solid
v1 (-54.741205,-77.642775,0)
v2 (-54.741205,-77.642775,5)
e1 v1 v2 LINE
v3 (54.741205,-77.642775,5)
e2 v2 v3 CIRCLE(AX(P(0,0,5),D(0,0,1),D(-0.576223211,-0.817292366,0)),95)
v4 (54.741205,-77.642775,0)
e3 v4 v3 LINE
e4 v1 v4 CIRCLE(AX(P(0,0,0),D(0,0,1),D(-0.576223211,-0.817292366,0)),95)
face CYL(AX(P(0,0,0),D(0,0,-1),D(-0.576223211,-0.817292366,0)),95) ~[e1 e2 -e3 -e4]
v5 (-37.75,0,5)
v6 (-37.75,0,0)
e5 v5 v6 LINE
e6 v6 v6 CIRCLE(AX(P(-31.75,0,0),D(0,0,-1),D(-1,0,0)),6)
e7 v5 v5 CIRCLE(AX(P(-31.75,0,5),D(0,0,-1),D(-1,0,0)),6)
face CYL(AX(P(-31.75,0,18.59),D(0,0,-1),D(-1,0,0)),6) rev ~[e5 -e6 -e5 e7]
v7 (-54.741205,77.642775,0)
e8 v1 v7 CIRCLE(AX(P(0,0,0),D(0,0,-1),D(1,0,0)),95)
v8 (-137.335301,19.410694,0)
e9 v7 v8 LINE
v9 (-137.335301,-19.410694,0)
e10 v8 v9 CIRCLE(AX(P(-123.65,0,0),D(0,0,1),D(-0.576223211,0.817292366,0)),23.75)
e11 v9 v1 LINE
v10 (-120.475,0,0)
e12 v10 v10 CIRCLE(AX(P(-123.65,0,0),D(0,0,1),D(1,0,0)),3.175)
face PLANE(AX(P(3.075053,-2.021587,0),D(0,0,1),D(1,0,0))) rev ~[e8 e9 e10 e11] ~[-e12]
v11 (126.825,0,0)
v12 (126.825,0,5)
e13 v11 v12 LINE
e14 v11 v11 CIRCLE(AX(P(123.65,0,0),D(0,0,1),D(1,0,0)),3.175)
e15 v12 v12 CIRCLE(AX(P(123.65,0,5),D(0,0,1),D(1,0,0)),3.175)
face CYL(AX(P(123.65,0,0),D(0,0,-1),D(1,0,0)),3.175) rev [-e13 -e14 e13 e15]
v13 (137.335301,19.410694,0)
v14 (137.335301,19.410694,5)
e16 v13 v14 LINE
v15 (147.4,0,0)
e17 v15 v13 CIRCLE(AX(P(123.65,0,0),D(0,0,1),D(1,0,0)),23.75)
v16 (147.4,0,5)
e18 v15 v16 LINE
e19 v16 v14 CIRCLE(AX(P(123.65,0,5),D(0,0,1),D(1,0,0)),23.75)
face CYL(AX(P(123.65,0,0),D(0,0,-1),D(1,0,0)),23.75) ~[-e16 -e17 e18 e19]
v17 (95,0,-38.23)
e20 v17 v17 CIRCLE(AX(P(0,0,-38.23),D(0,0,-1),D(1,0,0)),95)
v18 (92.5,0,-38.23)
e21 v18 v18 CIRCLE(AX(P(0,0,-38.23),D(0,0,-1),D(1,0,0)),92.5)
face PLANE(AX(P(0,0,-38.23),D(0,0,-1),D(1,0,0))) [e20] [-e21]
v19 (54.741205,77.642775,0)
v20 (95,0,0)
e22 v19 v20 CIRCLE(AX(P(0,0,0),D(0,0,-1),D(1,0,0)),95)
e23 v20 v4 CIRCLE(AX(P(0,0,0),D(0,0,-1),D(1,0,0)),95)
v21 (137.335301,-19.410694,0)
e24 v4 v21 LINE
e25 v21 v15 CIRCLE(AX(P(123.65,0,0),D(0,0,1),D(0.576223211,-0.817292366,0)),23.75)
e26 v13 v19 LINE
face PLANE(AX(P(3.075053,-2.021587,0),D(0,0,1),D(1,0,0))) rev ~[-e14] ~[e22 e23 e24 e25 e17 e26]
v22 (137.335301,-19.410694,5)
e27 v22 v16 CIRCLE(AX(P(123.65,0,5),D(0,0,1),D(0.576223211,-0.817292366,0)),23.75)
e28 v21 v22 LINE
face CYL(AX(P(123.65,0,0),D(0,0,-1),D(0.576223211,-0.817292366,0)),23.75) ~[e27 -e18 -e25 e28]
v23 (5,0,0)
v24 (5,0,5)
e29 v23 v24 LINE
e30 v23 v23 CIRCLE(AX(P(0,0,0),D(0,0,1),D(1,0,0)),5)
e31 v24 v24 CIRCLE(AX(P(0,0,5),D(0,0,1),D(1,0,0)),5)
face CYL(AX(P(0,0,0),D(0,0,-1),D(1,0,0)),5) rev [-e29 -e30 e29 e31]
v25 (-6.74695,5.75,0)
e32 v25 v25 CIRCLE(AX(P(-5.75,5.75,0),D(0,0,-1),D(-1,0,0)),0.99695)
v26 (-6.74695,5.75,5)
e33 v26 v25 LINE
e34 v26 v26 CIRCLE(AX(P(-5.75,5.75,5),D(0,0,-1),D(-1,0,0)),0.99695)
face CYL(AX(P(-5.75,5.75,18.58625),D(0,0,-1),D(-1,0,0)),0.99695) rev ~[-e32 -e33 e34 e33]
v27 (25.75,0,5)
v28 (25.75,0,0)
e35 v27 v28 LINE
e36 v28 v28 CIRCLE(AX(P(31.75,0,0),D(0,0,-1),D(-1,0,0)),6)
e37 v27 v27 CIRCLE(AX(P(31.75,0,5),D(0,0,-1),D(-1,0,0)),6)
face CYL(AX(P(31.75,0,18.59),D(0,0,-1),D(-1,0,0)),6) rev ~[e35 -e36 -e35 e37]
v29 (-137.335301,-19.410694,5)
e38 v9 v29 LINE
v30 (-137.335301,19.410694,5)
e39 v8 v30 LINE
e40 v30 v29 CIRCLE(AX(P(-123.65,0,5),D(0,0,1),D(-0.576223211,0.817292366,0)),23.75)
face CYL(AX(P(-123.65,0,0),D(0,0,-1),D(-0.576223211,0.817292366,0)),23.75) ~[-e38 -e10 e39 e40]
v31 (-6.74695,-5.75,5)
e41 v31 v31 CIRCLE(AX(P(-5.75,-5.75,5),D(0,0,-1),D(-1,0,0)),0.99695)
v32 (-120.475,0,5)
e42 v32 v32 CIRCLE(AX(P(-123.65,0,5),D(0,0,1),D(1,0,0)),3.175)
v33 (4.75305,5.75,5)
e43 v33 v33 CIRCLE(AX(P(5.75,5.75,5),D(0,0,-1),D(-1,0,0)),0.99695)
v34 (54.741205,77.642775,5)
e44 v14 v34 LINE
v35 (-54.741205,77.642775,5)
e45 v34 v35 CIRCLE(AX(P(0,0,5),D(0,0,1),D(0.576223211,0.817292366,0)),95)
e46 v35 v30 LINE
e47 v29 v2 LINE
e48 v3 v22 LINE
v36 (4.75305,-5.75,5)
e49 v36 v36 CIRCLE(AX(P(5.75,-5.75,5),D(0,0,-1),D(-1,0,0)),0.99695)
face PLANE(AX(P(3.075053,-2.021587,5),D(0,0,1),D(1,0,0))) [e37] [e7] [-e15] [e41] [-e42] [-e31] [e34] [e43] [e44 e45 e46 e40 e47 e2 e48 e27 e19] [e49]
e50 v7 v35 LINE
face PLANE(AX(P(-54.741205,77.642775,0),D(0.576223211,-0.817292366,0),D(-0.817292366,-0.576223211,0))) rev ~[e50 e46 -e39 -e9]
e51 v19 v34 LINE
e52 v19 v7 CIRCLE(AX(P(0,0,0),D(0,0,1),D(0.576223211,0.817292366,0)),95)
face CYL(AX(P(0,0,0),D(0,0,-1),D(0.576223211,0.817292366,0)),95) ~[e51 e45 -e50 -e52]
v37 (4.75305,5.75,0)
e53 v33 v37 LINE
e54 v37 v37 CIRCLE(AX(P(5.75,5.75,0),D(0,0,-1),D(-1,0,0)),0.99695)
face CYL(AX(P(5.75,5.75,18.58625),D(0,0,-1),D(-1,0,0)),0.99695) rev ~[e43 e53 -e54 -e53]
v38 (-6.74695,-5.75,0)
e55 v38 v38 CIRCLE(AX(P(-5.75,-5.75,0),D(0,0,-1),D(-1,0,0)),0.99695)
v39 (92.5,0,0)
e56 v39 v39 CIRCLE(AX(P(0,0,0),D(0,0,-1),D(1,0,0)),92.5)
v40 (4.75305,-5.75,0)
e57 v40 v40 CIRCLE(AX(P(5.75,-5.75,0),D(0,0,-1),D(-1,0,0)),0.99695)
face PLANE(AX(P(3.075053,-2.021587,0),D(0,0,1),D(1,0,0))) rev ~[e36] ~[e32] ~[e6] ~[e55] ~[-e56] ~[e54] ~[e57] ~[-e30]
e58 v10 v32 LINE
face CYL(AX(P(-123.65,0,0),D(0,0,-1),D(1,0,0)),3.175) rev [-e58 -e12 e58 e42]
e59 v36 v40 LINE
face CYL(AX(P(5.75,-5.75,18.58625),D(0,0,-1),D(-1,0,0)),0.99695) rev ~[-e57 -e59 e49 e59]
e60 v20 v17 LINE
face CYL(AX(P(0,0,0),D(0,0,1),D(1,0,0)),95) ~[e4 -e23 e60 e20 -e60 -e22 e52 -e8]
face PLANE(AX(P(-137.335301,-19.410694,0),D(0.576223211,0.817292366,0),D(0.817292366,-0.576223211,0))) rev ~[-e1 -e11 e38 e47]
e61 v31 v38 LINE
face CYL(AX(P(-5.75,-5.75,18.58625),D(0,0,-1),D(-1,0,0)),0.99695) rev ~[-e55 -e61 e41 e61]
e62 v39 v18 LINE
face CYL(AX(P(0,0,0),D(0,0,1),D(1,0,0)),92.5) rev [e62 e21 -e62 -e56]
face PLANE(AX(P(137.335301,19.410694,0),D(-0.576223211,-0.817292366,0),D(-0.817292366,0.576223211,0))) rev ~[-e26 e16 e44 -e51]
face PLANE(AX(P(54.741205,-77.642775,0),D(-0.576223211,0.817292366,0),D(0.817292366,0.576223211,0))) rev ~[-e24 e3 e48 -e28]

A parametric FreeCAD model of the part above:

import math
import FreeCAD as App
import Part
import Sketcher
from FreeCAD import Vector
Q = App.Units.Quantity

doc = App.newDocument("Part")
body = doc.addObject("PartDesign::Body", "Body")

sketch1 = body.newObject("Sketcher::SketchObject", "Sketch")
sketch1.AttachmentSupport = (doc.getObject("XY_Plane"), [""])
sketch1.MapMode = "FlatFace"
sketch1.addGeometry(Part.ArcOfCircle(Part.Circle(Vector(0, 0, 0), Vector(0, 0, 1), 95), math.radians(-125.185339), math.radians(-54.814661)), False)
sketch1.addGeometry(Part.LineSegment(Vector(54.741205, -77.642775, 0), Vector(137.335301, -19.410694, 0)), False)
sketch1.addGeometry(Part.ArcOfCircle(Part.Circle(Vector(123.65, 0, 0), Vector(0, 0, 1), 23.75), math.radians(-54.814661), math.radians(0)), False)
sketch1.addGeometry(Part.ArcOfCircle(Part.Circle(Vector(123.65, 0, 0), Vector(0, 0, 1), 23.75), math.radians(0), math.radians(54.814661)), False)
sketch1.addGeometry(Part.LineSegment(Vector(137.335301, 19.410694, 0), Vector(54.741205, 77.642775, 0)), False)
sketch1.addGeometry(Part.ArcOfCircle(Part.Circle(Vector(0, 0, 0), Vector(0, 0, 1), 95), math.radians(54.814661), math.radians(125.185339)), False)
sketch1.addGeometry(Part.LineSegment(Vector(-54.741205, 77.642775, 0), Vector(-137.335301, 19.410694, 0)), False)
sketch1.addGeometry(Part.ArcOfCircle(Part.Circle(Vector(-123.65, 0, 0), Vector(0, 0, 1), 23.75), math.radians(125.185339), math.radians(234.814661)), False)
sketch1.addGeometry(Part.LineSegment(Vector(-137.335301, -19.410694, 0), Vector(-54.741205, -77.642775, 0)), False)
sketch1.addGeometry(Part.Circle(Vector(-123.65, 0, 0), Vector(0, 0, 1), 3.175), False)
sketch1.addGeometry(Part.Circle(Vector(0, 0, 0), Vector(0, 0, 1), 5), False)
sketch1.addGeometry(Part.Circle(Vector(123.65, 0, 0), Vector(0, 0, 1), 3.175), False)
sketch1.addConstraint(Sketcher.Constraint("Tangent", 0, 2, 1, 1))
sketch1.addConstraint(Sketcher.Constraint("Tangent", 1, 2, 2, 1))
sketch1.addConstraint(Sketcher.Constraint("Tangent", 2, 2, 3, 1))
sketch1.addConstraint(Sketcher.Constraint("Tangent", 3, 2, 4, 1))
sketch1.addConstraint(Sketcher.Constraint("Tangent", 4, 2, 5, 1))
sketch1.addConstraint(Sketcher.Constraint("Tangent", 5, 2, 6, 1))
sketch1.addConstraint(Sketcher.Constraint("Tangent", 6, 2, 7, 1))
sketch1.addConstraint(Sketcher.Constraint("Tangent", 7, 2, 8, 1))
sketch1.addConstraint(Sketcher.Constraint("Tangent", 8, 2, 0, 1))
sketch1.addConstraint(Sketcher.Constraint("Coincident", 0, 3, -1, 1))
sketch1.addConstraint(Sketcher.Constraint("Coincident", 5, 3, -1, 1))
sketch1.addConstraint(Sketcher.Constraint("Coincident", 10, 3, -1, 1))
sketch1.addConstraint(Sketcher.Constraint("Coincident", 9, 3, 7, 3))
sketch1.addConstraint(Sketcher.Constraint("Coincident", 11, 3, 2, 3))
sketch1.addConstraint(Sketcher.Constraint("Equal", 2, 3))
sketch1.addConstraint(Sketcher.Constraint("Equal", 0, 5))
sketch1.addConstraint(Sketcher.Constraint("Equal", 3, 7))
sketch1.addConstraint(Sketcher.Constraint("Equal", 9, 11))
sketch1.addConstraint(Sketcher.Constraint("Symmetric", 2, 3, 7, 3, -1, 1))
sketch1.addConstraint(Sketcher.Constraint("PointOnObject", 2, 3, -1))
sketch1.addConstraint(Sketcher.Constraint("PointOnObject", 2, 2, -1))
sketch1.addConstraint(Sketcher.Constraint("Diameter", 10, Q("10 mm")))
sketch1.addConstraint(Sketcher.Constraint("Radius", 0, Q("95 mm")))
sketch1.addConstraint(Sketcher.Constraint("Diameter", 9, Q("6.35 mm")))
sketch1.addConstraint(Sketcher.Constraint("Radius", 2, Q("23.75 mm")))
sketch1.addConstraint(Sketcher.Constraint("DistanceX", -1, 1, 2, 2, Q("147.4 mm")))
pad1 = body.newObject("PartDesign::Pad", "Pad")
pad1.Profile = sketch1
pad1.Length = 5

sketch2 = body.newObject("Sketcher::SketchObject", "Sketch001")
sketch2.AttachmentSupport = (doc.getObject("XY_Plane"), [""])
sketch2.MapMode = "FlatFace"
sketch2.addGeometry(Part.Circle(Vector(0, 0, 0), Vector(0, 0, 1), 95), False)
sketch2.addGeometry(Part.Circle(Vector(0, 0, 0), Vector(0, 0, 1), 92.5), False)
sketch2.addConstraint(Sketcher.Constraint("Coincident", 0, 3, -1, 1))
sketch2.addConstraint(Sketcher.Constraint("Coincident", 1, 3, -1, 1))
sketch2.addConstraint(Sketcher.Constraint("Diameter", 0, Q("190 mm")))
sketch2.addConstraint(Sketcher.Constraint("Diameter", 1, Q("185 mm")))
pad2 = body.newObject("PartDesign::Pad", "Pad001")
pad2.Profile = sketch2
pad2.Length = 38.23
pad2.Reversed = True

sketch3 = body.newObject("Sketcher::SketchObject", "Sketch002")
sketch3.AttachmentSupport = (doc.getObject("XY_Plane"), [""])
sketch3.MapMode = "FlatFace"
sketch3.AttachmentOffset = App.Placement(Vector(0, 0, 5), App.Rotation())
sketch3.addGeometry(Part.Circle(Vector(-5.75, 5.75, 0), Vector(0, 0, 1), 0.99695), False)
sketch3.addGeometry(Part.Circle(Vector(5.75, 5.75, 0), Vector(0, 0, 1), 0.99695), False)
sketch3.addGeometry(Part.Circle(Vector(5.75, -5.75, 0), Vector(0, 0, 1), 0.99695), False)
sketch3.addGeometry(Part.Circle(Vector(-5.75, -5.75, 0), Vector(0, 0, 1), 0.99695), False)
sketch3.addConstraint(Sketcher.Constraint("Equal", 0, 1))
sketch3.addConstraint(Sketcher.Constraint("Equal", 1, 2))
sketch3.addConstraint(Sketcher.Constraint("Equal", 2, 3))
sketch3.addConstraint(Sketcher.Constraint("Symmetric", 0, 3, 2, 3, -1, 1))
sketch3.addConstraint(Sketcher.Constraint("Symmetric", 1, 3, 3, 3, -1, 1))
sketch3.addConstraint(Sketcher.Constraint("Symmetric", 0, 3, 1, 3, -2))
sketch3.addConstraint(Sketcher.Constraint("Diameter", 0, Q("1.9939 mm")))
sketch3.addConstraint(Sketcher.Constraint("DistanceX", 0, 3, 1, 3, Q("11.5 mm")))
sketch3.addConstraint(Sketcher.Constraint("DistanceY", 2, 3, 1, 3, Q("11.5 mm")))
doc.recompute()
hole = body.newObject("PartDesign::Hole", "Hole")
hole.Profile = sketch3
hole.ThreadType = "None"
hole.Diameter = 1.9939
hole.DepthType = "Dimension"
hole.Depth = 13.58625
hole.DrillPoint = "Angled"
hole.DrillPointAngle = 118

sketch4 = body.newObject("Sketcher::SketchObject", "Sketch003")
sketch4.AttachmentSupport = (doc.getObject("XY_Plane"), [""])
sketch4.MapMode = "FlatFace"
sketch4.AttachmentOffset = App.Placement(Vector(0, 0, 5), App.Rotation())
sketch4.addGeometry(Part.Circle(Vector(-31.75, 0, 0), Vector(0, 0, 1), 6), False)
sketch4.addGeometry(Part.Circle(Vector(31.75, 0, 0), Vector(0, 0, 1), 6), False)
sketch4.addConstraint(Sketcher.Constraint("Equal", 0, 1))
sketch4.addConstraint(Sketcher.Constraint("Symmetric", 0, 3, 1, 3, -1, 1))
sketch4.addConstraint(Sketcher.Constraint("PointOnObject", 0, 3, -1))
sketch4.addConstraint(Sketcher.Constraint("Diameter", 0, Q("12 mm")))
sketch4.addConstraint(Sketcher.Constraint("DistanceX", 0, 3, 1, 3, Q("63.5 mm")))
doc.recompute()
hole2 = body.newObject("PartDesign::Hole", "Hole001")
hole2.Profile = sketch4
hole2.ThreadType = "None"
hole2.Diameter = 12
hole2.DepthType = "Dimension"
hole2.Depth = 13.59
hole2.DrillPoint = "Angled"
hole2.DrillPointAngle = 118

doc.recompute()
